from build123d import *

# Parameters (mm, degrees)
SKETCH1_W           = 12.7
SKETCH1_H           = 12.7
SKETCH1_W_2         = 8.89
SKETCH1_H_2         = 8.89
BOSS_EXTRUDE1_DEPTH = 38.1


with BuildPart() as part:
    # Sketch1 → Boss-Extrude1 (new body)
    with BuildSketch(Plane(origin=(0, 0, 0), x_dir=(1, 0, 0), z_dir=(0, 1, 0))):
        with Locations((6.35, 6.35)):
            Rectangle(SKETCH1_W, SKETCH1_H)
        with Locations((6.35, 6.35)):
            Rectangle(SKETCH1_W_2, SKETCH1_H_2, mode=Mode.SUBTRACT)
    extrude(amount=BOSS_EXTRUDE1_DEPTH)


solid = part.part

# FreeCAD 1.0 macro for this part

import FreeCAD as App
import Part
import Sketcher

V = App.Vector
Q = App.Units.Quantity

doc = App.newDocument("Part")
body = doc.addObject("PartDesign::Body", "Body")

# Sketch on XZ plane
sketch1 = body.newObject("Sketcher::SketchObject", "Sketch")
sketch1.AttachmentSupport = (doc.getObject("XZ_Plane"), [""])
sketch1.MapMode = "FlatFace"
sketch1.addGeometry([
    Part.LineSegment(V(0, -12.7, 0), V(0, 0, 0)),  # 0
    Part.LineSegment(V(0, 0, 0), V(12.7, 0, 0)),  # 1
    Part.LineSegment(V(12.7, 0, 0), V(12.7, -12.7, 0)),  # 2
    Part.LineSegment(V(12.7, -12.7, 0), V(0, -12.7, 0)),  # 3
    Part.LineSegment(V(10.795, -1.905, 0), V(1.905, -1.905, 0)),  # 4
    Part.LineSegment(V(1.905, -1.905, 0), V(1.905, -10.795, 0)),  # 5
    Part.LineSegment(V(1.905, -10.795, 0), V(10.795, -10.795, 0)),  # 6
    Part.LineSegment(V(10.795, -10.795, 0), V(10.795, -1.905, 0)),  # 7
], False)
sketch1.addConstraint([
    Sketcher.Constraint("Coincident", 0, 2, 1, 1),
    Sketcher.Constraint("Coincident", 1, 2, 2, 1),
    Sketcher.Constraint("Coincident", 2, 2, 3, 1),
    Sketcher.Constraint("Coincident", 3, 2, 0, 1),
    Sketcher.Constraint("Coincident", 4, 2, 5, 1),
    Sketcher.Constraint("Coincident", 5, 2, 6, 1),
    Sketcher.Constraint("Coincident", 6, 2, 7, 1),
    Sketcher.Constraint("Coincident", 7, 2, 4, 1),
    Sketcher.Constraint("Vertical", 0),
    Sketcher.Constraint("Horizontal", 1),
    Sketcher.Constraint("Vertical", 2),
    Sketcher.Constraint("Horizontal", 3),
    Sketcher.Constraint("Horizontal", 4),
    Sketcher.Constraint("Vertical", 5),
    Sketcher.Constraint("Horizontal", 6),
    Sketcher.Constraint("Vertical", 7),
    Sketcher.Constraint("Coincident", 0, 2, -1, 1),
    Sketcher.Constraint("Equal", 3, 0),
    Sketcher.Constraint("Equal", 6, 5),
    Sketcher.Constraint("DistanceX", 1, 1, 1, 2, Q("0.5 in")),
    Sketcher.Constraint("DistanceX", 4, 2, 4, 1, Q("0.35 in")),
    Sketcher.Constraint("DistanceX", -1, 1, 4, 2, Q("0.075 in")),
    Sketcher.Constraint("DistanceY", 4, 2, -1, 1, Q("0.075 in")),
])
pad1 = body.newObject("PartDesign::Pad", "Pad")
pad1.Profile = sketch1
pad1.Length = Q("1.5 in")
pad1.Reversed = True

doc.recompute()
